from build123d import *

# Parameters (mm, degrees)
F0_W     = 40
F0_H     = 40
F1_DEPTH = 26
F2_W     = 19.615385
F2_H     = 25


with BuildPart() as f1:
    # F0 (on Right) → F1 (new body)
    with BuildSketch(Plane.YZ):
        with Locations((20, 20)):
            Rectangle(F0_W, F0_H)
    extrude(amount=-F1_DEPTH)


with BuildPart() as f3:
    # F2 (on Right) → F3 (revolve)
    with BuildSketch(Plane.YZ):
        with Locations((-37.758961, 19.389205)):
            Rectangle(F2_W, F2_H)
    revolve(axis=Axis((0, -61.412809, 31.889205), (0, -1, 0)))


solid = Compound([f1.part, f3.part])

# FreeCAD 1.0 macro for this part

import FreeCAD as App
import Part
import Sketcher


def add_polygon(sketch, points):
    """Adds a closed chain of lines whose ends are joined by coincident constraints."""
    first, n = sketch.GeometryCount, len(points)
    for a, b in zip(points, points[1:] + points[:1]):
        sketch.addGeometry(Part.LineSegment(App.Vector(*a, 0), App.Vector(*b, 0)), False)
    for i in range(n):
        sketch.addConstraint(Sketcher.Constraint("Coincident", first + i, 2, first + (i + 1) % n, 1))

doc = App.newDocument("Part")
params = doc.addObject("Spreadsheet::Sheet", "Params")
for row, (alias, value) in enumerate([
    ("sketch1_width", "40 mm"),
    ("pad1_length", "26 mm"),
    ("sketch2_height", "25 mm"),
    ("revolution_angle", "360 deg"),
], start=1):
    params.set(f"A{row}", alias)
    params.set(f"B{row}", "=" + value)
    params.setAlias(f"B{row}", alias)

body = doc.addObject("PartDesign::Body", "Body")

# Sketch on YZ plane
sketch1 = doc.addObject("Sketcher::SketchObject", "Sketch")
body.addObject(sketch1)
sketch1.AttachmentSupport = (doc.YZ_Plane, [""])
sketch1.MapMode = "FlatFace"
add_polygon(sketch1, [(0, 40), (0, 0), (40, 0), (40, 40)])  # lines 0-3
sketch1.addConstraint([
    Sketcher.Constraint("Vertical", 0),
    Sketcher.Constraint("Horizontal", 1),
    Sketcher.Constraint("Vertical", 2),
    Sketcher.Constraint("Horizontal", 3),
    Sketcher.Constraint("Coincident", 0, 2, -1, 1),
    Sketcher.Constraint("Equal", 3, 0),
    Sketcher.Constraint("DistanceX", 1, 1, 1, 2, 40.0),
])
sketch1.setExpression("Constraints[10]", "Params.sketch1_width")
pad1 = doc.addObject("PartDesign::Pad", "Pad")
body.addObject(pad1)
pad1.Profile = sketch1
pad1.setExpression("Length", "Params.pad1_length")
pad1.Reversed = True
body2 = doc.addObject("PartDesign::Body", "Body001")

# Sketch on YZ plane
sketch2 = doc.addObject("Sketcher::SketchObject", "Sketch001")
body2.addObject(sketch2)
sketch2.AttachmentSupport = (doc.getObject("YZ_Plane001"), [""])
sketch2.MapMode = "FlatFace"
add_polygon(sketch2, [(-47.566654, 31.889205), (-47.566654, 6.889205), (-27.951269, 6.889205), (-27.951269, 31.889205)])  # lines 0-3
sketch2.addGeometry(Part.LineSegment(App.Vector(-27.951269, 31.889205, 0), App.Vector(-47.566654, 31.889205, 0)), True)  # axis
sketch2.addConstraint([
    Sketcher.Constraint("Vertical", 0),
    Sketcher.Constraint("Horizontal", 1),
    Sketcher.Constraint("Vertical", 2),
    Sketcher.Constraint("Horizontal", 3),
    Sketcher.Constraint("Horizontal", 4),
    Sketcher.Constraint("Coincident", 4, 1, 2, 2),
    Sketcher.Constraint("Vertical", 0, 2, 4, 2),
    Sketcher.Constraint("DistanceY", 0, 2, 0, 1, 25.0),
    Sketcher.Constraint("DistanceX", 1, 1, 1, 2, 19.615385),
    Sketcher.Constraint("DistanceX", 1, 2, -1, 1, 27.951269),
    Sketcher.Constraint("DistanceY", -1, 1, 0, 2, 6.889205),
])
sketch2.setExpression("Constraints[11]", "Params.sketch2_height")
revolution = doc.addObject("PartDesign::Revolution", "Revolution")
body2.addObject(revolution)
revolution.Profile = sketch2
revolution.ReferenceAxis = (sketch2, ["Axis0"])
revolution.setExpression("Angle", "Params.revolution_angle")

doc.recompute()
